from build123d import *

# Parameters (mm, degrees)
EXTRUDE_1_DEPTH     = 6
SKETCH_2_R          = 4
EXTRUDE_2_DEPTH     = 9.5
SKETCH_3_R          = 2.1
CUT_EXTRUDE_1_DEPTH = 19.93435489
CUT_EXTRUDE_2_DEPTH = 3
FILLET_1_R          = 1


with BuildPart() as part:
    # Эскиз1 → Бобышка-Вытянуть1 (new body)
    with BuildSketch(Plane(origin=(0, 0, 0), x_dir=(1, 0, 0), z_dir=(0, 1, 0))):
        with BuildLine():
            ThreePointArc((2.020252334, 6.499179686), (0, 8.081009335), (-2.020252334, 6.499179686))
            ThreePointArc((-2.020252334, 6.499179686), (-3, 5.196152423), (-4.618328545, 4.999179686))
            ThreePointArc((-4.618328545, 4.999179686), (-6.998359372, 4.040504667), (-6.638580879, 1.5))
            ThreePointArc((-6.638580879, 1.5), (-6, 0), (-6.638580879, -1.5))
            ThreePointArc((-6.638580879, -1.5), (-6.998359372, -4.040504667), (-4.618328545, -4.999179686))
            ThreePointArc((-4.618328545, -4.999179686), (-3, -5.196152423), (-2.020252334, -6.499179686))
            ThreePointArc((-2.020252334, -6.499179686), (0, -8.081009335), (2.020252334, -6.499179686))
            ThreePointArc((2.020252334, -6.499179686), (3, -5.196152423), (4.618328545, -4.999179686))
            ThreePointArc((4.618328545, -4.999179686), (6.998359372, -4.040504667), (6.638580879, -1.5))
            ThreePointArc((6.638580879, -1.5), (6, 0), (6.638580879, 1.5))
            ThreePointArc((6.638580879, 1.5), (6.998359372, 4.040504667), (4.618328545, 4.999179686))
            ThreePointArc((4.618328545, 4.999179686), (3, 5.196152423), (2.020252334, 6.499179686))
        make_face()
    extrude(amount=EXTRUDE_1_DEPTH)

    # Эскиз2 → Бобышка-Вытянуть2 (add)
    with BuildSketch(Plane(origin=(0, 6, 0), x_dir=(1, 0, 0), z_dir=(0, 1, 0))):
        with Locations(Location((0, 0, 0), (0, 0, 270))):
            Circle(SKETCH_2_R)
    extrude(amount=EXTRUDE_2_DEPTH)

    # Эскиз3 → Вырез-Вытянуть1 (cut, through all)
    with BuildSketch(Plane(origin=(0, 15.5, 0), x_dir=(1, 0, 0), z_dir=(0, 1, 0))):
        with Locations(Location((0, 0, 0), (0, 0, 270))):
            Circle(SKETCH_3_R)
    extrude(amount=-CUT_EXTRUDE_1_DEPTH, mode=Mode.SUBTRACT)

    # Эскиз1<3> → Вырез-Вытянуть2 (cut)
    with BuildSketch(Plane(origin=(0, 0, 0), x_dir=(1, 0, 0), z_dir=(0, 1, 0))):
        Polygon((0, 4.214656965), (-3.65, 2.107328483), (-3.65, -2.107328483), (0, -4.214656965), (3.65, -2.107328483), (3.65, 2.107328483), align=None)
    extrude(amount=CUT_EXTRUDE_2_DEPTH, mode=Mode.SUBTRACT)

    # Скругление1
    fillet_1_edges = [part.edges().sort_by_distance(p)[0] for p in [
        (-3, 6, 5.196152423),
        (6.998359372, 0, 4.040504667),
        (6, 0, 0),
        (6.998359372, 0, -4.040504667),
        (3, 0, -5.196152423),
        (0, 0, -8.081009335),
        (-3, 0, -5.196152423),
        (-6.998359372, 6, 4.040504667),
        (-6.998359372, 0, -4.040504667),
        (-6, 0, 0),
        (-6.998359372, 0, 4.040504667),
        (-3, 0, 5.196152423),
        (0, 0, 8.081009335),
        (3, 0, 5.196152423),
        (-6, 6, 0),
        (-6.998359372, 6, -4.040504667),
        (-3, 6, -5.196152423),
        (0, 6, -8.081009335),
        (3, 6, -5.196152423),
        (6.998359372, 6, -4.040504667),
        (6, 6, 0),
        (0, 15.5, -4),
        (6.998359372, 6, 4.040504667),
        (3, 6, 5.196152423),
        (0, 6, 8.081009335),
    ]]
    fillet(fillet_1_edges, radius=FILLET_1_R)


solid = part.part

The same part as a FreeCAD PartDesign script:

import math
import FreeCAD as App
import Part
import Sketcher
from FreeCAD import Vector
Q = App.Units.Quantity


def edges_at(feature, points):
    """Names of the edges that pass closest to the given points."""
    edges = feature.Shape.Edges
    near = lambda p: min(range(len(edges)), key=lambda i: edges[i].distToShape(Part.Vertex(*p))[0])
    return sorted({f"Edge{near(p) + 1}" for p in points})

doc = App.newDocument("Part")
body = doc.addObject("PartDesign::Body", "Body")

sketch1 = body.newObject("Sketcher::SketchObject", "Sketch")
sketch1.AttachmentSupport = (doc.getObject("XZ_Plane"), [""])
sketch1.MapMode = "FlatFace"
sketch1.addGeometry([
    Part.ArcOfCircle(Part.Circle(Vector(0, -6, 0), Vector(0, 0, 1), 2.1), math.radians(-166), math.radians(-14)),
    Part.ArcOfCircle(Part.Circle(Vector(-4, -7, 0), Vector(0, 0, 1), 2.1), math.radians(14), math.radians(106)),
    Part.ArcOfCircle(Part.Circle(Vector(-5.2, -3, 0), Vector(0, 0, 1), 2.1), math.radians(134), math.radians(286)),
    Part.ArcOfCircle(Part.Circle(Vector(-8.1, 0, 0), Vector(0, 0, 1), 2.1), math.radians(-46), math.radians(46)),
    Part.ArcOfCircle(Part.Circle(Vector(-5.2, 3, 0), Vector(0, 0, 1), 2.1), math.radians(74), math.radians(226)),
    Part.ArcOfCircle(Part.Circle(Vector(-4, 7, 0), Vector(0, 0, 1), 2.1), math.radians(-106), math.radians(-14)),
    Part.ArcOfCircle(Part.Circle(Vector(0, 6, 0), Vector(0, 0, 1), 2.1), math.radians(14), math.radians(166)),
    Part.ArcOfCircle(Part.Circle(Vector(4, 7, 0), Vector(0, 0, 1), 2.1), math.radians(-166), math.radians(-74)),
    Part.ArcOfCircle(Part.Circle(Vector(5.2, 3, 0), Vector(0, 0, 1), 2.1), math.radians(-46), math.radians(106)),
    Part.ArcOfCircle(Part.Circle(Vector(8.1, 0, 0), Vector(0, 0, 1), 2.1), math.radians(134), math.radians(226)),
    Part.ArcOfCircle(Part.Circle(Vector(5.2, -3, 0), Vector(0, 0, 1), 2.1), math.radians(-106), math.radians(46)),
    Part.ArcOfCircle(Part.Circle(Vector(4, -7, 0), Vector(0, 0, 1), 2.1), math.radians(74), math.radians(166)),
], False)
sketch1.addConstraint([
    Sketcher.Constraint("Tangent", 0, 1, 1, 1),
    Sketcher.Constraint("Tangent", 1, 2, 2, 2),
    Sketcher.Constraint("Tangent", 2, 1, 3, 1),
    Sketcher.Constraint("Tangent", 3, 2, 4, 2),
    Sketcher.Constraint("Tangent", 4, 1, 5, 1),
    Sketcher.Constraint("Tangent", 5, 2, 6, 2),
    Sketcher.Constraint("Tangent", 6, 1, 7, 1),
    Sketcher.Constraint("Tangent", 7, 2, 8, 2),
    Sketcher.Constraint("Tangent", 8, 1, 9, 1),
    Sketcher.Constraint("Tangent", 9, 2, 10, 2),
    Sketcher.Constraint("Tangent", 10, 1, 11, 1),
    Sketcher.Constraint("Tangent", 11, 2, 0, 2),
    Sketcher.Constraint("Equal", 0, 1),
    Sketcher.Constraint("Equal", 1, 2),
    Sketcher.Constraint("Equal", 2, 3),
    Sketcher.Constraint("Equal", 3, 4),
    Sketcher.Constraint("Equal", 4, 5),
    Sketcher.Constraint("Equal", 5, 6),
    Sketcher.Constraint("Equal", 6, 7),
    Sketcher.Constraint("Equal", 7, 8),
    Sketcher.Constraint("Equal", 8, 9),
    Sketcher.Constraint("Equal", 9, 10),
    Sketcher.Constraint("Equal", 10, 11),
    Sketcher.Constraint("Symmetric", 0, 3, 6, 3, -1, 1),
    Sketcher.Constraint("Symmetric", 2, 3, 8, 3, -1, 1),
    Sketcher.Constraint("Symmetric", 4, 3, 10, 3, -1, 1),
    Sketcher.Constraint("Symmetric", 5, 3, 7, 3, -2),
    Sketcher.Constraint("PointOnObject", 3, 3, -1),
    Sketcher.Constraint("DistanceY", 0, 3, -1, 1, 6.0),
    Sketcher.Constraint("DistanceY", 2, 3, -1, 1, 3.0),
    Sketcher.Constraint("Radius", 0, 2.081009),
    Sketcher.Constraint("DistanceX", 2, 3, 0, 1, 3.1759),
])
pad1 = body.newObject("PartDesign::Pad", "Pad")
pad1.Profile = sketch1
pad1.Length = 6
pad1.Reversed = True

sketch2 = body.newObject("Sketcher::SketchObject", "Sketch001")
sketch2.AttachmentSupport = (doc.getObject("XZ_Plane"), [""])
sketch2.MapMode = "FlatFace"
sketch2.AttachmentOffset = App.Placement(Vector(0, 0, -6), App.Rotation())
sketch2.addGeometry(Part.Circle(Vector(0, 0, 0), Vector(0, 0, 1), 4), False)
sketch2.addConstraint([
    Sketcher.Constraint("Coincident", 0, 3, -1, 1),
    Sketcher.Constraint("Diameter", 0, 8.0),
])
pad2 = body.newObject("PartDesign::Pad", "Pad001")
pad2.Profile = sketch2
pad2.Length = 9.5
pad2.Reversed = True

sketch3 = body.newObject("Sketcher::SketchObject", "Sketch002")
sketch3.AttachmentSupport = (doc.getObject("XZ_Plane"), [""])
sketch3.MapMode = "FlatFace"
sketch3.AttachmentOffset = App.Placement(Vector(0, 0, -15.5), App.Rotation())
sketch3.addGeometry(Part.Circle(Vector(0, 0, 0), Vector(0, 0, 1), 2.1), False)
sketch3.addConstraint([
    Sketcher.Constraint("Coincident", 0, 3, -1, 1),
    Sketcher.Constraint("Diameter", 0, 4.2),
])
pocket1 = body.newObject("PartDesign::Pocket", "Pocket")
pocket1.Profile = sketch3
pocket1.Type = "ThroughAll"
pocket1.Reversed = True

sketch4 = body.newObject("Sketcher::SketchObject", "Sketch003")
sketch4.AttachmentSupport = (doc.getObject("XZ_Plane"), [""])
sketch4.MapMode = "FlatFace"
sketch4.addGeometry([
    Part.LineSegment(Vector(0, -4.2, 0), Vector(-3.6, -2.1, 0)),
    Part.LineSegment(Vector(-3.6, -2.1, 0), Vector(-3.6, 2.1, 0)),
    Part.LineSegment(Vector(-3.6, 2.1, 0), Vector(0, 4.2, 0)),
    Part.LineSegment(Vector(0, 4.2, 0), Vector(3.6, 2.1, 0)),
    Part.LineSegment(Vector(3.6, 2.1, 0), Vector(3.6, -2.1, 0)),
    Part.LineSegment(Vector(3.6, -2.1, 0), Vector(0, -4.2, 0)),
], False)
sketch4.addConstraint([
    Sketcher.Constraint("Coincident", 0, 2, 1, 1),
    Sketcher.Constraint("Coincident", 1, 2, 2, 1),
    Sketcher.Constraint("Coincident", 2, 2, 3, 1),
    Sketcher.Constraint("Coincident", 3, 2, 4, 1),
    Sketcher.Constraint("Coincident", 4, 2, 5, 1),
    Sketcher.Constraint("Coincident", 5, 2, 0, 1),
    Sketcher.Constraint("Vertical", 1),
    Sketcher.Constraint("Vertical", 4),
    Sketcher.Constraint("Symmetric", 0, 2, 3, 2, -1, 1),
    Sketcher.Constraint("Symmetric", 2, 2, 5, 2, -1, 1),
    Sketcher.Constraint("PointOnObject", 2, 2, -2),
    Sketcher.Constraint("Parallel", 2, 5),
    Sketcher.Constraint("Horizontal", 1, 2, 3, 2),
    Sketcher.Constraint("Angle", 0, Q("150 deg")),
    Sketcher.Constraint("DistanceX", 1, 2, 3, 2, 7.3),
    Sketcher.Constraint("DistanceY", 1, 1, 1, 2, 4.214657),
])
pocket2 = body.newObject("PartDesign::Pocket", "Pocket001")
pocket2.Profile = sketch4
pocket2.Length = 3
doc.recompute()

fillet = body.newObject("PartDesign::Fillet", "Fillet")
fillet.Base = (pocket2, edges_at(pocket2, [
    (-3, 6, 5.196),
    (6.998, 0, 4.041),
    (6, 0, 0),
    (6.998, 0, -4.041),
    (3, 0, -5.196),
    (0, 0, -8.081),
    (-3, 0, -5.196),
    (-6.998, 6, 4.041),
    (-6.998, 0, -4.041),
    (-6, 0, 0),
    (-6.998, 0, 4.041),
    (-3, 0, 5.196),
    (0, 0, 8.081),
    (3, 0, 5.196),
    (-6, 6, 0),
    (-6.998, 6, -4.041),
    (-3, 6, -5.196),
    (0, 6, -8.081),
    (3, 6, -5.196),
    (6.998, 6, -4.041),
    (6, 6, 0),
    (0, 15.5, -4),
    (6.998, 6, 4.041),
    (3, 6, 5.196),
    (0, 6, 8.081),
]))
fillet.Radius = 1

doc.recompute()
